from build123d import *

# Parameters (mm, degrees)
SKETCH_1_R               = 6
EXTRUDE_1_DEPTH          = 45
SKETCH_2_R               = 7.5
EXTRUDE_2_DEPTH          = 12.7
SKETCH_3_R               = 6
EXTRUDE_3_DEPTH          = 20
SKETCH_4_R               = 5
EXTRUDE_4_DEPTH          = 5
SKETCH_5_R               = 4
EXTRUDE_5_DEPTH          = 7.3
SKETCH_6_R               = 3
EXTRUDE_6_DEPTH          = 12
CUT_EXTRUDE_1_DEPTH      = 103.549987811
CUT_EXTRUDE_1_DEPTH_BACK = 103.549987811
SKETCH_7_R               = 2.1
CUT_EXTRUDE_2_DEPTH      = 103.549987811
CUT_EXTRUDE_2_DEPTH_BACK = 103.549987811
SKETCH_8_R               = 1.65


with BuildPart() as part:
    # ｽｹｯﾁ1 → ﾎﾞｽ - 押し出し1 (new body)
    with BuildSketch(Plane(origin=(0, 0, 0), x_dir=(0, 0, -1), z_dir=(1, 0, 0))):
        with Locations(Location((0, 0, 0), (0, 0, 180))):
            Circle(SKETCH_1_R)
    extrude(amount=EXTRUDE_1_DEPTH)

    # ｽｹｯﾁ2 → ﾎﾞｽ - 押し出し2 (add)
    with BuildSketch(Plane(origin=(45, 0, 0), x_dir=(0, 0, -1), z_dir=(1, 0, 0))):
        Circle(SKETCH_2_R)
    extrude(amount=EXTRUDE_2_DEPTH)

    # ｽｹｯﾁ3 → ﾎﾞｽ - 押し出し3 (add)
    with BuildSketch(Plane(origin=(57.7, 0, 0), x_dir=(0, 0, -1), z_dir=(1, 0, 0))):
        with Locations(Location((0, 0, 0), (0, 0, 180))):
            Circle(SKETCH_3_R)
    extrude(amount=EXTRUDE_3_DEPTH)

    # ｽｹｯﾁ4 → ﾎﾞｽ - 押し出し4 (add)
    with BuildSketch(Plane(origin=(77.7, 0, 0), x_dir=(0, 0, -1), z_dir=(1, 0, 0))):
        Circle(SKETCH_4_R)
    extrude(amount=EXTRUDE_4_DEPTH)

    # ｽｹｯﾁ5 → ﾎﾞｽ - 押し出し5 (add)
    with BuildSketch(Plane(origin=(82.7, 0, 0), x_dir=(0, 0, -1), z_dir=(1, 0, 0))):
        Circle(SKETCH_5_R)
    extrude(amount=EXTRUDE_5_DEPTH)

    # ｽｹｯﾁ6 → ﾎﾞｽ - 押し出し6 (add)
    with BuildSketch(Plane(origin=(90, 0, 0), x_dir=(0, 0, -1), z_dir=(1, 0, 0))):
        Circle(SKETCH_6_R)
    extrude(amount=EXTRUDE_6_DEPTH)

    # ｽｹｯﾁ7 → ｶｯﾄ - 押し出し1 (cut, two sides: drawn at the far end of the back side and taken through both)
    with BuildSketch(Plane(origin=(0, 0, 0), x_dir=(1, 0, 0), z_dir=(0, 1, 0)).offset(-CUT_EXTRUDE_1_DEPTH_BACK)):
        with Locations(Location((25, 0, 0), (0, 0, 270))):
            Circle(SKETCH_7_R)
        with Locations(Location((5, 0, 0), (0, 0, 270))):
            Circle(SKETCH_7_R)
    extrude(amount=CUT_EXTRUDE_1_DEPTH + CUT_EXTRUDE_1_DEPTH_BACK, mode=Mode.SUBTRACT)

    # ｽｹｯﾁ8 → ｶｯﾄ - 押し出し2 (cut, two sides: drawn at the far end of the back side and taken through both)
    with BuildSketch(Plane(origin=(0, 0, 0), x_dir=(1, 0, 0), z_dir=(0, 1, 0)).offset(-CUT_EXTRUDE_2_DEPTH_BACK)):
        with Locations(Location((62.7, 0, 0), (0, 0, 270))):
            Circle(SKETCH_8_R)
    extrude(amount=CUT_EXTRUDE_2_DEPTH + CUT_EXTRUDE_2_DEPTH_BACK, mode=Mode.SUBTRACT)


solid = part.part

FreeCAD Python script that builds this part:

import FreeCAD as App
import Part
import Sketcher

doc = App.newDocument("Part")
params = doc.addObject("Spreadsheet::Sheet", "Params")
for row, (alias, value) in enumerate([
    ("sketch1_diameter", "12 mm"),
    ("pad1_length", "45 mm"),
    ("sketch2_diameter", "15 mm"),
    ("pad2_length", "12.7 mm"),
    ("sketch3_diameter", "12 mm"),
    ("pad3_length", "20 mm"),
    ("sketch4_diameter", "10 mm"),
    ("pad4_length", "5 mm"),
    ("sketch5_diameter", "8 mm"),
    ("pad5_length", "7.3 mm"),
    ("sketch6_diameter", "6 mm"),
    ("pad6_length", "12 mm"),
    ("sketch7_diameter", "4.2 mm"),
    ("sketch8_diameter", "3.3 mm"),
], start=1):
    params.set(f"A{row}", alias)
    params.set(f"B{row}", "=" + value)
    params.setAlias(f"B{row}", alias)

body = doc.addObject("PartDesign::Body", "Body")

# Sketch on YZ plane
sketch1 = doc.addObject("Sketcher::SketchObject", "Sketch")
body.addObject(sketch1)
sketch1.AttachmentSupport = (doc.YZ_Plane, [""])
sketch1.MapMode = "FlatFace"
sketch1.addGeometry(Part.Circle(App.Vector(0, 0, 0), App.Vector(0, 0, 1), 6), False)
sketch1.addConstraint([
    Sketcher.Constraint("Coincident", 0, 3, -1, 1),
    Sketcher.Constraint("Diameter", 0, 12.0),
])
sketch1.setExpression("Constraints[1]", "Params.sketch1_diameter")
pad1 = doc.addObject("PartDesign::Pad", "Pad")
body.addObject(pad1)
pad1.Profile = sketch1
pad1.setExpression("Length", "Params.pad1_length")

# Sketch on YZ plane
sketch2 = doc.addObject("Sketcher::SketchObject", "Sketch001")
body.addObject(sketch2)
sketch2.AttachmentSupport = (doc.YZ_Plane, [""])
sketch2.MapMode = "FlatFace"
sketch2.AttachmentOffset = App.Placement(App.Vector(0, 0, 45), App.Rotation())
sketch2.addGeometry(Part.Circle(App.Vector(0, 0, 0), App.Vector(0, 0, 1), 8), False)
sketch2.addConstraint([
    Sketcher.Constraint("Coincident", 0, 3, -1, 1),
    Sketcher.Constraint("Diameter", 0, 15.0),
])
sketch2.setExpression("Constraints[1]", "Params.sketch2_diameter")
pad2 = doc.addObject("PartDesign::Pad", "Pad001")
body.addObject(pad2)
pad2.Profile = sketch2
pad2.setExpression("Length", "Params.pad2_length")

# Sketch on YZ plane
sketch3 = doc.addObject("Sketcher::SketchObject", "Sketch002")
body.addObject(sketch3)
sketch3.AttachmentSupport = (doc.YZ_Plane, [""])
sketch3.MapMode = "FlatFace"
sketch3.AttachmentOffset = App.Placement(App.Vector(0, 0, 57.7), App.Rotation())
sketch3.addGeometry(Part.Circle(App.Vector(0, 0, 0), App.Vector(0, 0, 1), 6), False)
sketch3.addConstraint([
    Sketcher.Constraint("Coincident", 0, 3, -1, 1),
    Sketcher.Constraint("Diameter", 0, 12.0),
])
sketch3.setExpression("Constraints[1]", "Params.sketch3_diameter")
pad3 = doc.addObject("PartDesign::Pad", "Pad002")
body.addObject(pad3)
pad3.Profile = sketch3
pad3.setExpression("Length", "Params.pad3_length")

# Sketch on YZ plane
sketch4 = doc.addObject("Sketcher::SketchObject", "Sketch003")
body.addObject(sketch4)
sketch4.AttachmentSupport = (doc.YZ_Plane, [""])
sketch4.MapMode = "FlatFace"
sketch4.AttachmentOffset = App.Placement(App.Vector(0, 0, 77.7), App.Rotation())
sketch4.addGeometry(Part.Circle(App.Vector(0, 0, 0), App.Vector(0, 0, 1), 5), False)
sketch4.addConstraint([
    Sketcher.Constraint("Coincident", 0, 3, -1, 1),
    Sketcher.Constraint("Diameter", 0, 10.0),
])
sketch4.setExpression("Constraints[1]", "Params.sketch4_diameter")
pad4 = doc.addObject("PartDesign::Pad", "Pad003")
body.addObject(pad4)
pad4.Profile = sketch4
pad4.setExpression("Length", "Params.pad4_length")

# Sketch on YZ plane
sketch5 = doc.addObject("Sketcher::SketchObject", "Sketch004")
body.addObject(sketch5)
sketch5.AttachmentSupport = (doc.YZ_Plane, [""])
sketch5.MapMode = "FlatFace"
sketch5.AttachmentOffset = App.Placement(App.Vector(0, 0, 82.7), App.Rotation())
sketch5.addGeometry(Part.Circle(App.Vector(0, 0, 0), App.Vector(0, 0, 1), 4), False)
sketch5.addConstraint([
    Sketcher.Constraint("Coincident", 0, 3, -1, 1),
    Sketcher.Constraint("Diameter", 0, 8.0),
])
sketch5.setExpression("Constraints[1]", "Params.sketch5_diameter")
pad5 = doc.addObject("PartDesign::Pad", "Pad004")
body.addObject(pad5)
pad5.Profile = sketch5
pad5.setExpression("Length", "Params.pad5_length")

# Sketch on YZ plane
sketch6 = doc.addObject("Sketcher::SketchObject", "Sketch005")
body.addObject(sketch6)
sketch6.AttachmentSupport = (doc.YZ_Plane, [""])
sketch6.MapMode = "FlatFace"
sketch6.AttachmentOffset = App.Placement(App.Vector(0, 0, 90), App.Rotation())
sketch6.addGeometry(Part.Circle(App.Vector(0, 0, 0), App.Vector(0, 0, 1), 3), False)
sketch6.addConstraint([
    Sketcher.Constraint("Coincident", 0, 3, -1, 1),
    Sketcher.Constraint("Diameter", 0, 6.0),
])
sketch6.setExpression("Constraints[1]", "Params.sketch6_diameter")
pad6 = doc.addObject("PartDesign::Pad", "Pad005")
body.addObject(pad6)
pad6.Profile = sketch6
pad6.setExpression("Length", "Params.pad6_length")

# Sketch on XZ plane
sketch7 = doc.addObject("Sketcher::SketchObject", "Sketch006")
body.addObject(sketch7)
sketch7.AttachmentSupport = (doc.XZ_Plane, [""])
sketch7.MapMode = "FlatFace"
sketch7.addGeometry([
    Part.Circle(App.Vector(25, 0, 0), App.Vector(0, 0, 1), 2.1),
    Part.Circle(App.Vector(5, 0, 0), App.Vector(0, 0, 1), 2.1),
], False)
sketch7.addConstraint([
    Sketcher.Constraint("Equal", 0, 1),
    Sketcher.Constraint("PointOnObject", 0, 3, -1),
    Sketcher.Constraint("PointOnObject", 1, 3, -1),
    Sketcher.Constraint("Diameter", 0, 4.2),
    Sketcher.Constraint("DistanceX", -1, 1, 0, 3, 25.0),
    Sketcher.Constraint("DistanceX", -1, 1, 1, 3, 5.0),
])
sketch7.setExpression("Constraints[3]", "Params.sketch7_diameter")
pocket1 = doc.addObject("PartDesign::Pocket", "Pocket")
body.addObject(pocket1)
pocket1.Profile = sketch7
pocket1.Type = "ThroughAll"
pocket1.Midplane = True

# Sketch on XZ plane
sketch8 = doc.addObject("Sketcher::SketchObject", "Sketch007")
body.addObject(sketch8)
sketch8.AttachmentSupport = (doc.XZ_Plane, [""])
sketch8.MapMode = "FlatFace"
sketch8.addGeometry(Part.Circle(App.Vector(62.7, 0, 0), App.Vector(0, 0, 1), 1.6), False)
sketch8.addConstraint([
    Sketcher.Constraint("PointOnObject", 0, 3, -1),
    Sketcher.Constraint("Diameter", 0, 3.3),
    Sketcher.Constraint("DistanceX", -1, 1, 0, 3, 62.7),
])
sketch8.setExpression("Constraints[1]", "Params.sketch8_diameter")
pocket2 = doc.addObject("PartDesign::Pocket", "Pocket001")
body.addObject(pocket2)
pocket2.Profile = sketch8
pocket2.Type = "ThroughAll"
pocket2.Midplane = True

doc.recompute()
